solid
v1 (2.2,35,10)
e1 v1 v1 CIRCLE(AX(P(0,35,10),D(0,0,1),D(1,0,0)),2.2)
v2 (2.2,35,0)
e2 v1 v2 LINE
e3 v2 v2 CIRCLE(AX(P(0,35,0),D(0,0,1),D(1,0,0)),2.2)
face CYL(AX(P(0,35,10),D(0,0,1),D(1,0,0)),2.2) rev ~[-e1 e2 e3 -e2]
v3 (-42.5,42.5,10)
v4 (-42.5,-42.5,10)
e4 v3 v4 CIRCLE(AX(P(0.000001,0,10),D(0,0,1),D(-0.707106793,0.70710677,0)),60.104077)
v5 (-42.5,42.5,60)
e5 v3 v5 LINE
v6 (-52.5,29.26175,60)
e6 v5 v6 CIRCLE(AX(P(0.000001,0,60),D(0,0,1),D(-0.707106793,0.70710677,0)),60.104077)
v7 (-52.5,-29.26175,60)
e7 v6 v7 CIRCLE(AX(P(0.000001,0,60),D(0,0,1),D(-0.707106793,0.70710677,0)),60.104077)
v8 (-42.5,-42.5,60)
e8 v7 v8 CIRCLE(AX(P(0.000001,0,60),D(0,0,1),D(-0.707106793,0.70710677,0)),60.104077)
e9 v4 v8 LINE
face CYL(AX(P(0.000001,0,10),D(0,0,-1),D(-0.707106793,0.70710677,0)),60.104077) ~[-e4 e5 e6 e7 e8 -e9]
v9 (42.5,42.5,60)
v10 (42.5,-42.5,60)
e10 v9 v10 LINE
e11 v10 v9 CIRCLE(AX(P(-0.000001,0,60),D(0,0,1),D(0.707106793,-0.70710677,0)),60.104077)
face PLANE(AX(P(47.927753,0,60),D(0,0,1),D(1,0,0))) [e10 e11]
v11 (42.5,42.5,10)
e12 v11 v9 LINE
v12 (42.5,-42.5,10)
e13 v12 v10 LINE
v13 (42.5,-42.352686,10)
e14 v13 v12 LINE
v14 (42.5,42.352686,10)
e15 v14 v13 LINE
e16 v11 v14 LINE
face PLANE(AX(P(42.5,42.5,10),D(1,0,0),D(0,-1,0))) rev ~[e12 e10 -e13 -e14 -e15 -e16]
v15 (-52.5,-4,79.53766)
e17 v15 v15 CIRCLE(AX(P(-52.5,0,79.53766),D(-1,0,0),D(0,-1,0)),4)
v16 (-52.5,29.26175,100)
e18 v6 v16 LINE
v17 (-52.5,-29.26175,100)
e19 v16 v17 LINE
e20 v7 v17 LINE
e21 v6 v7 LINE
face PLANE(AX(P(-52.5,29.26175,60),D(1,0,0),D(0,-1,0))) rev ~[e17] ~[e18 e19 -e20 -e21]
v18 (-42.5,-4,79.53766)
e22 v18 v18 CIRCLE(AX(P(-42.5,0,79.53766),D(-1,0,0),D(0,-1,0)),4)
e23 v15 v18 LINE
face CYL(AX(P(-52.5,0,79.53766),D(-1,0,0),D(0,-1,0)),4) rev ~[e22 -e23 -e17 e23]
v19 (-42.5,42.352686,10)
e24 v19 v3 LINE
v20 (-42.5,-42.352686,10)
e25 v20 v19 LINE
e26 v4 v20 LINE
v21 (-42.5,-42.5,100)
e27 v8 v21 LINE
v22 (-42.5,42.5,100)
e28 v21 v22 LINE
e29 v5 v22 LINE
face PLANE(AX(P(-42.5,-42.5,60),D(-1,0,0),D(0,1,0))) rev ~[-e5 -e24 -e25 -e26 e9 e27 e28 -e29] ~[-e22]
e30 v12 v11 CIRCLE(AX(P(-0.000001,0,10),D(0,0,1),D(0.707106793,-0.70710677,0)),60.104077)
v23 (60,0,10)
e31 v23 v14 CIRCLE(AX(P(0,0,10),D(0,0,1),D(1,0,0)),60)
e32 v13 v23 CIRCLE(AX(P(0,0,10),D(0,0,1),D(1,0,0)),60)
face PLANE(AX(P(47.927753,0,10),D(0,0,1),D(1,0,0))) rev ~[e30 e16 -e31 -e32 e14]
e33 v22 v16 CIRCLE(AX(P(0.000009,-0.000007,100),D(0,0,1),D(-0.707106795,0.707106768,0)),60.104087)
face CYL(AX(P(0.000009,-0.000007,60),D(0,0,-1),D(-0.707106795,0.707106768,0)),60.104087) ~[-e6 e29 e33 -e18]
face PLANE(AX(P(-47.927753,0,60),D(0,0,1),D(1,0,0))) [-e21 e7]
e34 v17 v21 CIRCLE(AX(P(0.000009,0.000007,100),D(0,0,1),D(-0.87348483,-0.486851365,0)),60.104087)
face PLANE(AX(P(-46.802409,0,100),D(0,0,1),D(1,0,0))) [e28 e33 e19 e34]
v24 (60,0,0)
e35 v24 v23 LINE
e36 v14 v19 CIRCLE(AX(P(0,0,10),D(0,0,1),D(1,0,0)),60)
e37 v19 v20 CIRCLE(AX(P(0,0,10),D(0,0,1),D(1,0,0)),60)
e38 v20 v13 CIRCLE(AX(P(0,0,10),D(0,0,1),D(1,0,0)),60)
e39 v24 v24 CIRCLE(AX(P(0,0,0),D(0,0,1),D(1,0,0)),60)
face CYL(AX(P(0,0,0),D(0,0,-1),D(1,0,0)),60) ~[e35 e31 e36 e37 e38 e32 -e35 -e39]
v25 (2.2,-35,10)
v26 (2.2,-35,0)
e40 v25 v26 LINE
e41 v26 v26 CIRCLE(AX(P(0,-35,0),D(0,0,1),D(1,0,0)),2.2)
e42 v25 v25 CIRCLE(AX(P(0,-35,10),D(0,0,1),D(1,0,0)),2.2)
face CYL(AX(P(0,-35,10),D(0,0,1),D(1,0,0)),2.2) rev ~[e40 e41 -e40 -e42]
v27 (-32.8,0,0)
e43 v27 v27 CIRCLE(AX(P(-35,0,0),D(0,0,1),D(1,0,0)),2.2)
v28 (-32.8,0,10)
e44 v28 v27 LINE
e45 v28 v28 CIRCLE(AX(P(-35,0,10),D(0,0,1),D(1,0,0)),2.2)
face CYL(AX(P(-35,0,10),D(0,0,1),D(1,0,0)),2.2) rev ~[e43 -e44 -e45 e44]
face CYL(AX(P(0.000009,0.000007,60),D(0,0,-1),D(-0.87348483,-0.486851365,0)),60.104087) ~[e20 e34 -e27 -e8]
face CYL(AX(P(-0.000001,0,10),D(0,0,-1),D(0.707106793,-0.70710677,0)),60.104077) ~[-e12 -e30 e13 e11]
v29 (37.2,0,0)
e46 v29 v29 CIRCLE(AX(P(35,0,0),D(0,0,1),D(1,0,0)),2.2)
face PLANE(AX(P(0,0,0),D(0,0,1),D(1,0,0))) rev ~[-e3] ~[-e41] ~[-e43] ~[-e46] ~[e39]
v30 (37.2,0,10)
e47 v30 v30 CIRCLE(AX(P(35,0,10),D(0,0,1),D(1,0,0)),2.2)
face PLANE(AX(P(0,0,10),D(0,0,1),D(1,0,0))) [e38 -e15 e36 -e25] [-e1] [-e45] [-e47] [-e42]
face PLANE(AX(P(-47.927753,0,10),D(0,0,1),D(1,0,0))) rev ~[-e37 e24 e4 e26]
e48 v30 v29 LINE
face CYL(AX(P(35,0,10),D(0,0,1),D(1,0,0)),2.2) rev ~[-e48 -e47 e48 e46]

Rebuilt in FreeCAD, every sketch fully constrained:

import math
import FreeCAD as App
import Part
import Sketcher
from FreeCAD import Vector
Q = App.Units.Quantity

doc = App.newDocument("Part")
params = doc.addObject("Spreadsheet::Sheet", "Params")
for row, (alias, value) in enumerate([
    ("sketch1_diameter", "120 mm"),
    ("pad1_length", "10 mm"),
    ("sketch2_diameter", "4.4 mm"),
    ("pocket1_length", "14 mm"),
    ("sketch3_height", "85 mm"),
    ("pad2_length", "50 mm"),
    ("sketch4_height", "85 mm"),
    ("pad3_length", "40 mm"),
    ("sketch5_diameter", "8 mm"),
    ("pocket2_length", "10 mm"),
], start=1):
    params.set(f"A{row}", alias)
    params.set(f"B{row}", "=" + value)
    params.setAlias(f"B{row}", alias)

body = doc.addObject("PartDesign::Body", "Body")

sketch1 = body.newObject("Sketcher::SketchObject", "Sketch")
sketch1.AttachmentSupport = (doc.getObject("XY_Plane"), [""])
sketch1.MapMode = "FlatFace"
sketch1.addGeometry(Part.Circle(Vector(0, 0, 0), Vector(0, 0, 1), 60), False)
sketch1.addConstraint(Sketcher.Constraint("Coincident", 0, 3, -1, 1))
sketch1.addConstraint(Sketcher.Constraint("Diameter", 0, Q("120 mm")))
sketch1.setExpression("Constraints[1]", "Params.sketch1_diameter")
pad1 = body.newObject("PartDesign::Pad", "Pad")
pad1.Profile = sketch1
pad1.setExpression("Length", "Params.pad1_length")

sketch2 = body.newObject("Sketcher::SketchObject", "Sketch001")
sketch2.AttachmentSupport = (doc.getObject("XY_Plane"), [""])
sketch2.MapMode = "FlatFace"
sketch2.AttachmentOffset = App.Placement(Vector(0, 0, 10), App.Rotation())
sketch2.addGeometry(Part.Circle(Vector(0, 35, 0), Vector(0, 0, 1), 2.2), False)
sketch2.addGeometry(Part.Circle(Vector(35, 0, 0), Vector(0, 0, 1), 2.2), False)
sketch2.addGeometry(Part.Circle(Vector(-35, 0, 0), Vector(0, 0, 1), 2.2), False)
sketch2.addGeometry(Part.Circle(Vector(0, -35, 0), Vector(0, 0, 1), 2.2), False)
sketch2.addConstraint(Sketcher.Constraint("Equal", 0, 1))
sketch2.addConstraint(Sketcher.Constraint("Equal", 1, 2))
sketch2.addConstraint(Sketcher.Constraint("Equal", 2, 3))
sketch2.addConstraint(Sketcher.Constraint("Symmetric", 1, 3, 2, 3, -1, 1))
sketch2.addConstraint(Sketcher.Constraint("Symmetric", 0, 3, 3, 3, -1, 1))
sketch2.addConstraint(Sketcher.Constraint("PointOnObject", 0, 3, -2))
sketch2.addConstraint(Sketcher.Constraint("PointOnObject", 1, 3, -1))
sketch2.addConstraint(Sketcher.Constraint("Diameter", 0, Q("4.4 mm")))
sketch2.addConstraint(Sketcher.Constraint("DistanceY", -1, 1, 0, 3, Q("35 mm")))
sketch2.addConstraint(Sketcher.Constraint("DistanceX", -1, 1, 1, 3, Q("35 mm")))
sketch2.setExpression("Constraints[7]", "Params.sketch2_diameter")
pocket1 = body.newObject("PartDesign::Pocket", "Pocket")
pocket1.Profile = sketch2
pocket1.setExpression("Length", "Params.pocket1_length")

sketch3 = body.newObject("Sketcher::SketchObject", "Sketch002")
sketch3.AttachmentSupport = (doc.getObject("XY_Plane"), [""])
sketch3.MapMode = "FlatFace"
sketch3.AttachmentOffset = App.Placement(Vector(0, 0, 10), App.Rotation())
sketch3.addGeometry(Part.ArcOfCircle(Part.Circle(Vector(-0.000001, 0, 0), Vector(0, 0, 1), 60.104077), math.radians(-44.999999), math.radians(44.999999)), False)
sketch3.addGeometry(Part.LineSegment(Vector(42.5, 42.5, 0), Vector(42.5, -42.5, 0)), False)
sketch3.addGeometry(Part.LineSegment(Vector(-42.5, -42.5, 0), Vector(-42.5, 42.5, 0)), False)
sketch3.addGeometry(Part.ArcOfCircle(Part.Circle(Vector(0.000001, 0, 0), Vector(0, 0, 1), 60.104077), math.radians(135.000001), math.radians(224.999999)), False)
sketch3.addConstraint(Sketcher.Constraint("Coincident", 0, 1, 1, 2))
sketch3.addConstraint(Sketcher.Constraint("Coincident", 1, 1, 0, 2))
sketch3.addConstraint(Sketcher.Constraint("Coincident", 2, 1, 3, 2))
sketch3.addConstraint(Sketcher.Constraint("Coincident", 3, 1, 2, 2))
sketch3.addConstraint(Sketcher.Constraint("Vertical", 1))
sketch3.addConstraint(Sketcher.Constraint("Vertical", 2))
sketch3.addConstraint(Sketcher.Constraint("Coincident", 0, 3, -1, 1))
sketch3.addConstraint(Sketcher.Constraint("Coincident", 3, 3, -1, 1))
sketch3.addConstraint(Sketcher.Constraint("Equal", 0, 3))
sketch3.addConstraint(Sketcher.Constraint("Horizontal", 0, 1, 2, 1))
sketch3.addConstraint(Sketcher.Constraint("DistanceY", 1, 2, 1, 1, Q("85 mm")))
sketch3.addConstraint(Sketcher.Constraint("DistanceX", 2, 1, 0, 1, Q("85 mm")))
sketch3.setExpression("Constraints[10]", "Params.sketch3_height")
pad2 = body.newObject("PartDesign::Pad", "Pad001")
pad2.Profile = sketch3
pad2.setExpression("Length", "Params.pad2_length")

sketch4 = body.newObject("Sketcher::SketchObject", "Sketch003")
sketch4.AttachmentSupport = (doc.getObject("XY_Plane"), [""])
sketch4.MapMode = "FlatFace"
sketch4.AttachmentOffset = App.Placement(Vector(0, 0, 60), App.Rotation())
sketch4.addGeometry(Part.LineSegment(Vector(-42.5, -42.5, 0), Vector(-42.5, 42.5, 0)), False)
sketch4.addGeometry(Part.ArcOfCircle(Part.Circle(Vector(0.000009, -0.000007, 0), Vector(0, 0, 1), 60.104087), math.radians(135.000001), math.radians(150.86616)), False)
sketch4.addGeometry(Part.LineSegment(Vector(-52.5, 29.26175, 0), Vector(-52.5, -29.26175, 0)), False)
sketch4.addGeometry(Part.ArcOfCircle(Part.Circle(Vector(0.000009, 0.000007, 0), Vector(0, 0, 1), 60.104087), math.radians(-150.86616), math.radians(-135.000001)), False)
sketch4.addConstraint(Sketcher.Constraint("Coincident", 0, 2, 1, 1))
sketch4.addConstraint(Sketcher.Constraint("Coincident", 1, 2, 2, 1))
sketch4.addConstraint(Sketcher.Constraint("Coincident", 2, 2, 3, 1))
sketch4.addConstraint(Sketcher.Constraint("Coincident", 3, 2, 0, 1))
sketch4.addConstraint(Sketcher.Constraint("Vertical", 0))
sketch4.addConstraint(Sketcher.Constraint("Vertical", 2))
sketch4.addConstraint(Sketcher.Constraint("Equal", 1, 3))
sketch4.addConstraint(Sketcher.Constraint("Symmetric", 1, 3, 3, 3, -1))
sketch4.addConstraint(Sketcher.Constraint("DistanceY", 0, 1, 0, 2, Q("85 mm")))
sketch4.addConstraint(Sketcher.Constraint("DistanceX", 1, 2, 0, 2, Q("10 mm")))
sketch4.addConstraint(Sketcher.Constraint("DistanceX", 0, 2, -1, 1, Q("42.5 mm")))
sketch4.addConstraint(Sketcher.Constraint("DistanceY", 2, 2, 2, 1, Q("58.5235 mm")))
sketch4.addConstraint(Sketcher.Constraint("Radius", 1, Q("60.104087 mm")))
sketch4.setExpression("Constraints[8]", "Params.sketch4_height")
pad3 = body.newObject("PartDesign::Pad", "Pad002")
pad3.Profile = sketch4
pad3.setExpression("Length", "Params.pad3_length")

sketch5 = body.newObject("Sketcher::SketchObject", "Sketch004")
sketch5.AttachmentSupport = (doc.getObject("YZ_Plane"), [""])
sketch5.MapMode = "FlatFace"
sketch5.AttachmentOffset = App.Placement(Vector(0, 0, -52.5), App.Rotation())
sketch5.addGeometry(Part.Circle(Vector(0, 79.53766, 0), Vector(0, 0, 1), 4), False)
sketch5.addConstraint(Sketcher.Constraint("PointOnObject", 0, 3, -2))
sketch5.addConstraint(Sketcher.Constraint("Diameter", 0, Q("8 mm")))
sketch5.addConstraint(Sketcher.Constraint("DistanceY", -1, 1, 0, 3, Q("79.53766 mm")))
sketch5.setExpression("Constraints[1]", "Params.sketch5_diameter")
pocket2 = body.newObject("PartDesign::Pocket", "Pocket001")
pocket2.Profile = sketch5
pocket2.setExpression("Length", "Params.pocket2_length")
pocket2.Reversed = True

doc.recompute()
